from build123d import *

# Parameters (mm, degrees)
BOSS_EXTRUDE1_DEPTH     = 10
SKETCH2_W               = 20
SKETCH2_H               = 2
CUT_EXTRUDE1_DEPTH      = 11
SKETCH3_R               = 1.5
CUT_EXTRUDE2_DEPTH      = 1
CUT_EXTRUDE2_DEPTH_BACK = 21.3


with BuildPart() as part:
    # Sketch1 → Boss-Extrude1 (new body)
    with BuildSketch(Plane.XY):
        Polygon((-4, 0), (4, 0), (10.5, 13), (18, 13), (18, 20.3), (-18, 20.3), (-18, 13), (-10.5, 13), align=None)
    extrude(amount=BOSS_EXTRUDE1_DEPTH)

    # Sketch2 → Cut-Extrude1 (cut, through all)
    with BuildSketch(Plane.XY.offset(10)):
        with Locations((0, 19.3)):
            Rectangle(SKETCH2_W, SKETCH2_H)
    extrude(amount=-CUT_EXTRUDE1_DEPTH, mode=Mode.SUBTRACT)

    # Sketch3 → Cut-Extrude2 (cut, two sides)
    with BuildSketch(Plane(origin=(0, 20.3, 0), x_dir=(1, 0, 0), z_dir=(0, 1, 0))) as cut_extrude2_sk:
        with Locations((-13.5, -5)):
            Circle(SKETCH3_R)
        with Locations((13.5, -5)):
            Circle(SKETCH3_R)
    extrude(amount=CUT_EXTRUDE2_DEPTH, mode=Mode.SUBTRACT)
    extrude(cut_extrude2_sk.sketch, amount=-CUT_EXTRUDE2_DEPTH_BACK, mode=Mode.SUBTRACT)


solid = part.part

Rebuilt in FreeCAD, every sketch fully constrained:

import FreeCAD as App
import Part
import Sketcher
from FreeCAD import Vector
Q = App.Units.Quantity

doc = App.newDocument("Part")
body = doc.addObject("PartDesign::Body", "Body")

# Sketch on XY plane
sketch1 = doc.addObject("Sketcher::SketchObject", "Sketch")
body.addObject(sketch1)
sketch1.AttachmentSupport = (doc.XY_Plane, [""])
sketch1.MapMode = "FlatFace"
sketch1.addGeometry(Part.LineSegment(Vector(-4, 0, 0), Vector(4, 0, 0)), False)
sketch1.addGeometry(Part.LineSegment(Vector(4, 0, 0), Vector(10, 13, 0)), False)
sketch1.addGeometry(Part.LineSegment(Vector(10, 13, 0), Vector(18, 13, 0)), False)
sketch1.addGeometry(Part.LineSegment(Vector(18, 13, 0), Vector(18, 20, 0)), False)
sketch1.addGeometry(Part.LineSegment(Vector(18, 20, 0), Vector(-18, 20, 0)), False)
sketch1.addGeometry(Part.LineSegment(Vector(-18, 20, 0), Vector(-18, 13, 0)), False)
sketch1.addGeometry(Part.LineSegment(Vector(-18, 13, 0), Vector(-10, 13, 0)), False)
sketch1.addGeometry(Part.LineSegment(Vector(-10, 13, 0), Vector(-4, 0, 0)), False)
sketch1.addConstraint(Sketcher.Constraint("Coincident", 0, 2, 1, 1))
sketch1.addConstraint(Sketcher.Constraint("Coincident", 1, 2, 2, 1))
sketch1.addConstraint(Sketcher.Constraint("Coincident", 2, 2, 3, 1))
sketch1.addConstraint(Sketcher.Constraint("Coincident", 3, 2, 4, 1))
sketch1.addConstraint(Sketcher.Constraint("Coincident", 4, 2, 5, 1))
sketch1.addConstraint(Sketcher.Constraint("Coincident", 5, 2, 6, 1))
sketch1.addConstraint(Sketcher.Constraint("Coincident", 6, 2, 7, 1))
sketch1.addConstraint(Sketcher.Constraint("Coincident", 7, 2, 0, 1))
sketch1.addConstraint(Sketcher.Constraint("Horizontal", 0))
sketch1.addConstraint(Sketcher.Constraint("Horizontal", 2))
sketch1.addConstraint(Sketcher.Constraint("Vertical", 3))
sketch1.addConstraint(Sketcher.Constraint("Horizontal", 4))
sketch1.addConstraint(Sketcher.Constraint("Vertical", 5))
sketch1.addConstraint(Sketcher.Constraint("Horizontal", 6))
sketch1.addConstraint(Sketcher.Constraint("Symmetric", 0, 2, 7, 2, -1, 1))
sketch1.addConstraint(Sketcher.Constraint("Symmetric", 2, 2, 5, 2, -2))
sketch1.addConstraint(Sketcher.Constraint("Equal", 2, 6))
sketch1.addConstraint(Sketcher.Constraint("DistanceX", 0, 1, 0, 2, Q("8 mm")))
sketch1.addConstraint(Sketcher.Constraint("DistanceX", 4, 2, 4, 1, Q("36 mm")))
sketch1.addConstraint(Sketcher.Constraint("DistanceX", 2, 1, 2, 2, Q("7.5 mm")))
sketch1.addConstraint(Sketcher.Constraint("DistanceY", 3, 1, 3, 2, Q("7.3 mm")))
sketch1.addConstraint(Sketcher.Constraint("DistanceY", -1, 1, 1, 2, Q("13 mm")))
pad1 = doc.addObject("PartDesign::Pad", "Pad")
body.addObject(pad1)
pad1.Profile = sketch1
pad1.Length = 10

# Sketch on XY plane
sketch2 = doc.addObject("Sketcher::SketchObject", "Sketch001")
body.addObject(sketch2)
sketch2.AttachmentSupport = (doc.XY_Plane, [""])
sketch2.MapMode = "FlatFace"
sketch2.AttachmentOffset = App.Placement(Vector(0, 0, 10), App.Rotation())
sketch2.addGeometry(Part.LineSegment(Vector(-10, 20.3, 0), Vector(-10, 18.3, 0)), False)
sketch2.addGeometry(Part.LineSegment(Vector(-10, 18.3, 0), Vector(10, 18.3, 0)), False)
sketch2.addGeometry(Part.LineSegment(Vector(10, 18.3, 0), Vector(10, 20.3, 0)), False)
sketch2.addGeometry(Part.LineSegment(Vector(10, 20.3, 0), Vector(-10, 20.3, 0)), False)
sketch2.addConstraint(Sketcher.Constraint("Coincident", 0, 2, 1, 1))
sketch2.addConstraint(Sketcher.Constraint("Coincident", 1, 2, 2, 1))
sketch2.addConstraint(Sketcher.Constraint("Coincident", 2, 2, 3, 1))
sketch2.addConstraint(Sketcher.Constraint("Coincident", 3, 2, 0, 1))
sketch2.addConstraint(Sketcher.Constraint("Vertical", 0))
sketch2.addConstraint(Sketcher.Constraint("Horizontal", 1))
sketch2.addConstraint(Sketcher.Constraint("Vertical", 2))
sketch2.addConstraint(Sketcher.Constraint("Horizontal", 3))
sketch2.addConstraint(Sketcher.Constraint("DistanceX", 1, 1, 1, 2, Q("20 mm")))
sketch2.addConstraint(Sketcher.Constraint("DistanceY", 0, 2, 0, 1, Q("2 mm")))
sketch2.addConstraint(Sketcher.Constraint("DistanceX", 0, 2, -1, 1, Q("10 mm")))
sketch2.addConstraint(Sketcher.Constraint("DistanceY", -1, 1, 0, 2, Q("18.3 mm")))
pocket1 = doc.addObject("PartDesign::Pocket", "Pocket")
body.addObject(pocket1)
pocket1.Profile = sketch2
pocket1.Type = "ThroughAll"

# Sketch on XZ plane
sketch3 = doc.addObject("Sketcher::SketchObject", "Sketch002")
body.addObject(sketch3)
sketch3.AttachmentSupport = (doc.XZ_Plane, [""])
sketch3.MapMode = "FlatFace"
sketch3.AttachmentOffset = App.Placement(Vector(0, 0, -20.3), App.Rotation())
sketch3.addGeometry(Part.Circle(Vector(-13.5, 5, 0), Vector(0, 0, 1), 1.5), False)
sketch3.addGeometry(Part.Circle(Vector(13.5, 5, 0), Vector(0, 0, 1), 1.5), False)
sketch3.addConstraint(Sketcher.Constraint("Equal", 0, 1))
sketch3.addConstraint(Sketcher.Constraint("Symmetric", 0, 3, 1, 3, -2))
sketch3.addConstraint(Sketcher.Constraint("Diameter", 0, Q("3 mm")))
sketch3.addConstraint(Sketcher.Constraint("DistanceY", -1, 1, 0, 3, Q("5 mm")))
sketch3.addConstraint(Sketcher.Constraint("DistanceX", 0, 3, 1, 3, Q("27 mm")))
pocket2 = doc.addObject("PartDesign::Pocket", "Pocket001")
body.addObject(pocket2)
pocket2.Profile = sketch3
pocket2.Type = "ThroughAll"
pocket2.Midplane = True

doc.recompute()
